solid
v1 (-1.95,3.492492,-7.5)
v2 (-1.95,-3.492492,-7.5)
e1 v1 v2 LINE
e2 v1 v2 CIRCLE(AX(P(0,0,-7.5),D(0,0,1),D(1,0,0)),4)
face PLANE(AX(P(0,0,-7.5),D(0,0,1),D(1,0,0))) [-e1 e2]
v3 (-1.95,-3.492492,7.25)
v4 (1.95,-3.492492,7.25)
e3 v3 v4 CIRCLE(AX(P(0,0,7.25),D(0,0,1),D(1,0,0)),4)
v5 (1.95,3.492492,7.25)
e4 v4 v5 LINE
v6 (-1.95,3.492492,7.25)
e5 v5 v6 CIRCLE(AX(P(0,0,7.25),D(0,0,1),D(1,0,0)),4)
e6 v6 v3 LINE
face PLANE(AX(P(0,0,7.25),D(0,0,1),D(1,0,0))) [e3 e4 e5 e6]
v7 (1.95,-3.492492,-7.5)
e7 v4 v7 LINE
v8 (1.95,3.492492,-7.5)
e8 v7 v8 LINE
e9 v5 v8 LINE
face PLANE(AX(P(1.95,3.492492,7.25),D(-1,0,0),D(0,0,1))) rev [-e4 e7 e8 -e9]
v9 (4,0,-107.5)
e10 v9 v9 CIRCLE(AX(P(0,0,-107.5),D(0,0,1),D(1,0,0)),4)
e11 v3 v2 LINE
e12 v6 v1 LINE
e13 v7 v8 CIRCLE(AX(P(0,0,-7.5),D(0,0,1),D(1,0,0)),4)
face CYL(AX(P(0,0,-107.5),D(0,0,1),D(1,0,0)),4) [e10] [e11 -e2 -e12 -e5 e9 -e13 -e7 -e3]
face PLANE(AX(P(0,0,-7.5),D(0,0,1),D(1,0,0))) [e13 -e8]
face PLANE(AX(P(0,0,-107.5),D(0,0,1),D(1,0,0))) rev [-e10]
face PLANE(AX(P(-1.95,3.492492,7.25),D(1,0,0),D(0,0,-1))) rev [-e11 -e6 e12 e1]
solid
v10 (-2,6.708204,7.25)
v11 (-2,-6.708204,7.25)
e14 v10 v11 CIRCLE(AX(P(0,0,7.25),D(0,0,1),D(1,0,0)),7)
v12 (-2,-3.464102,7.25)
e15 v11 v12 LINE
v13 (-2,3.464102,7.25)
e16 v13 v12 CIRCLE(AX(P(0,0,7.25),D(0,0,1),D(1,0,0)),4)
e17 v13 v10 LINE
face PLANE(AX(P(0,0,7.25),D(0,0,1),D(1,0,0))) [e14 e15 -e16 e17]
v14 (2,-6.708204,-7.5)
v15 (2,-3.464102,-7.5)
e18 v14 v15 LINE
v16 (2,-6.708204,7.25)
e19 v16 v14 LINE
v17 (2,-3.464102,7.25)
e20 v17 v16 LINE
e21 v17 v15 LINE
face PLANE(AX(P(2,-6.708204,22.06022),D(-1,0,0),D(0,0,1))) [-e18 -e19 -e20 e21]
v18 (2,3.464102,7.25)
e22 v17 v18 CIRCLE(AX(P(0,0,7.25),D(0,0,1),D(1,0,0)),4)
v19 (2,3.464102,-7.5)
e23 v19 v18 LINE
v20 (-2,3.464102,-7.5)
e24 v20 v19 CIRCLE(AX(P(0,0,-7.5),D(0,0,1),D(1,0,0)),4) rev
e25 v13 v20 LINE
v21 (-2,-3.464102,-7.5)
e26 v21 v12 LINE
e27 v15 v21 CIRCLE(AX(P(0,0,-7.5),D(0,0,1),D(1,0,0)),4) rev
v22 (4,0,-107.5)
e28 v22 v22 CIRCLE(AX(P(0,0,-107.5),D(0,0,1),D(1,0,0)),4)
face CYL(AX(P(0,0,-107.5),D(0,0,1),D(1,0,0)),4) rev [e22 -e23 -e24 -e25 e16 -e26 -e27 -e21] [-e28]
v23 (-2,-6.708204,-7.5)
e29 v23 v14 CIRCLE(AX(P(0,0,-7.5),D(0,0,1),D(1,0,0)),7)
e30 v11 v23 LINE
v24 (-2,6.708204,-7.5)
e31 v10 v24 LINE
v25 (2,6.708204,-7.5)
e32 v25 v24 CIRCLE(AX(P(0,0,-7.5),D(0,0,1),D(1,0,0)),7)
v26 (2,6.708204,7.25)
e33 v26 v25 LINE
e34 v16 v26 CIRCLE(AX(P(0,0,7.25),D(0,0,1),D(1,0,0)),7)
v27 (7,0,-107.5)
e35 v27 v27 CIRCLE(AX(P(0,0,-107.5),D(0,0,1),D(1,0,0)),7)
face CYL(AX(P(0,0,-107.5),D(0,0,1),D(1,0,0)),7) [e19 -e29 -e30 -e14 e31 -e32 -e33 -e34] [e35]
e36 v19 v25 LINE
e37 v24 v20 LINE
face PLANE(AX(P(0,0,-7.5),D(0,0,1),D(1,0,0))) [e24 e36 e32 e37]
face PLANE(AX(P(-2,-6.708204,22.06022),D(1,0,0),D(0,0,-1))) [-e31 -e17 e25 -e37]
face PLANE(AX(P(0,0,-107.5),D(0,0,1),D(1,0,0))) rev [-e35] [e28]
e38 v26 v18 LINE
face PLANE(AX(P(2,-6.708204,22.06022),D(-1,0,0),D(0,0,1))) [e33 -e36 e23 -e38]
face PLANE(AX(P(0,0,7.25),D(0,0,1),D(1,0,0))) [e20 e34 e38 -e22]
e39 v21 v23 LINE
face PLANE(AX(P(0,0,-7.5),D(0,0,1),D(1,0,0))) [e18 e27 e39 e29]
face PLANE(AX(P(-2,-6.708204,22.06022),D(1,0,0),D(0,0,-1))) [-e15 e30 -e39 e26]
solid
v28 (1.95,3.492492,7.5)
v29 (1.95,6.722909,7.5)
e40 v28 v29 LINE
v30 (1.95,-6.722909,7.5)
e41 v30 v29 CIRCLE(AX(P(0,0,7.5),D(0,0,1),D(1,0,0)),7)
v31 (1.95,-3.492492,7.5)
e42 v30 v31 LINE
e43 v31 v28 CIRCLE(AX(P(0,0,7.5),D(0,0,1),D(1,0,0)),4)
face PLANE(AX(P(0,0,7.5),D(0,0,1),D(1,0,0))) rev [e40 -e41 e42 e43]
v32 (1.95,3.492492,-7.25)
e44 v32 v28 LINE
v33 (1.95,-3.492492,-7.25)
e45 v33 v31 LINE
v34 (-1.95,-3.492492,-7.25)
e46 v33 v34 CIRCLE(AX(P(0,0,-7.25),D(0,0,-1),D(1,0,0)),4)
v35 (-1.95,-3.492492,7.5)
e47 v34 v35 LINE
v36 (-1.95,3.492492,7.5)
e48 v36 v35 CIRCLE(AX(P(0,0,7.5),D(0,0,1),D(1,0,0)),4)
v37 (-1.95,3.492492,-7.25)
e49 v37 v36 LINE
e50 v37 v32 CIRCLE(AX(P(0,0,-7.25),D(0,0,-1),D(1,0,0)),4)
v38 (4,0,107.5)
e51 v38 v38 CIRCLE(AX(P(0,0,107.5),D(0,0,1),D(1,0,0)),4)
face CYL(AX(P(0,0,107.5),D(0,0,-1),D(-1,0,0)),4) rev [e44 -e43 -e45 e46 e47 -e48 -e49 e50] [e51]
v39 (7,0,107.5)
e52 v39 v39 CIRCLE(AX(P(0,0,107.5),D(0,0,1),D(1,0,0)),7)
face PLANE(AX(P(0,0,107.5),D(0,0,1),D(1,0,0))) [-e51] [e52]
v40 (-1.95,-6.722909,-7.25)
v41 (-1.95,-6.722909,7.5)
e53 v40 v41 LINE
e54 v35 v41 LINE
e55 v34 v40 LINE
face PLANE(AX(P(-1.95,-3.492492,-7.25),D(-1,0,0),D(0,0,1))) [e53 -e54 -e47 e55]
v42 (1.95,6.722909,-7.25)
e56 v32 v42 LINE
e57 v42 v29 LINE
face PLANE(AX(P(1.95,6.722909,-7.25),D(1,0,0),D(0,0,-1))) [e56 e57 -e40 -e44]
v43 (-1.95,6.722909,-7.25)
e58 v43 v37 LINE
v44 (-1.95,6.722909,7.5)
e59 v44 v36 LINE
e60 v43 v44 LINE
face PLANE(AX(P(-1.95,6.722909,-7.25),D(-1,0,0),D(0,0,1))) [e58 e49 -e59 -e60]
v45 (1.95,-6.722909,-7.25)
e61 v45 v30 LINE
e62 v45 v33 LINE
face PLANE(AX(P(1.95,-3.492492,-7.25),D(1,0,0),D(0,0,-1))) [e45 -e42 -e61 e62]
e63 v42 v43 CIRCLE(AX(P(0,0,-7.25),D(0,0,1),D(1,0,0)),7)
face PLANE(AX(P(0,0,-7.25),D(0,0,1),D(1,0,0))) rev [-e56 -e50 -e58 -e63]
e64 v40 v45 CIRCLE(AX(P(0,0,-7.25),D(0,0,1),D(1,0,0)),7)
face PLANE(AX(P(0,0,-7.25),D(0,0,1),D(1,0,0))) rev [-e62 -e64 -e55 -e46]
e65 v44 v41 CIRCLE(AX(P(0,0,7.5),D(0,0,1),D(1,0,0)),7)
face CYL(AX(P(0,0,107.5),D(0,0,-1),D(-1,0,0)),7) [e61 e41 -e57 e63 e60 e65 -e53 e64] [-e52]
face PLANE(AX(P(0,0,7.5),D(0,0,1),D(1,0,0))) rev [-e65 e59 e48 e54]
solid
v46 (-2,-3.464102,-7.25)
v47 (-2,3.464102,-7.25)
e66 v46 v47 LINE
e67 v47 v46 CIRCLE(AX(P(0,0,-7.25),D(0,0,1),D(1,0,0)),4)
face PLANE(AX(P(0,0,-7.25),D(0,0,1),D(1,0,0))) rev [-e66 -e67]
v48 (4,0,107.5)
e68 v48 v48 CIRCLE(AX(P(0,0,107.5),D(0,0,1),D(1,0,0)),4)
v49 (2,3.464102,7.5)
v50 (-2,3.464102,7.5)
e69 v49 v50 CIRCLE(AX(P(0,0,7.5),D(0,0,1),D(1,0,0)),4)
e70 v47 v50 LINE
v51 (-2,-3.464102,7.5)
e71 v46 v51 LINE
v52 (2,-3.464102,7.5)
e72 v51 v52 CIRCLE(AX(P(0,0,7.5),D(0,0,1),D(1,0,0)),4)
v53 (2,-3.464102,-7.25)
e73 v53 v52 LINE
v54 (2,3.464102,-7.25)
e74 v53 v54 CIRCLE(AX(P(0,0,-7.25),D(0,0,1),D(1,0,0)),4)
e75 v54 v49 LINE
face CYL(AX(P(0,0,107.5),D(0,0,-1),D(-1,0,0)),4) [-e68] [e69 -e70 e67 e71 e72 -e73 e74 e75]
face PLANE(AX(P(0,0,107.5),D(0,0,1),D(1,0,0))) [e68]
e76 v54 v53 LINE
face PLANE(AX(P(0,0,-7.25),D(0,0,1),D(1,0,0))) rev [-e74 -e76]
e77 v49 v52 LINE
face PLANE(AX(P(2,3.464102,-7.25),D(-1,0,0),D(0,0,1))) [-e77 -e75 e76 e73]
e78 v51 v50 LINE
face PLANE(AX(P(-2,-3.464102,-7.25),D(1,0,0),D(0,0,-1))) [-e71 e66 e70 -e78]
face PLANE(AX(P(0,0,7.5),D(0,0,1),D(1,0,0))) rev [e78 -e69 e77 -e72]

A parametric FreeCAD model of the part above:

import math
import FreeCAD as App
import Part
import Sketcher

doc = App.newDocument("Part")
params = doc.addObject("Spreadsheet::Sheet", "Params")
for row, (alias, value) in enumerate([
    ("sketch1_diameter", "14 mm"),
    ("sketch1_diameter2", "8 mm"),
    ("pad1_length", "100 mm"),
    ("sketch2_diameter", "14 mm"),
    ("sketch2_diameter2", "8 mm"),
    ("pad2_length", "14.75 mm"),
    ("sketch3_radius", "7 mm"),
    ("pocket1_length", "15 mm"),
    ("sketch4_diameter", "14 mm"),
    ("sketch4_diameter2", "8 mm"),
    ("pad3_length", "100 mm"),
    ("sketch5_radius", "7 mm"),
    ("sketch5_radius2", "4 mm"),
    ("pad4_length", "14.75 mm"),
    ("sketch6_diameter", "8 mm"),
    ("pad5_length", "100 mm"),
    ("sketch7_radius", "4 mm"),
    ("pad6_length", "14.75 mm"),
    ("sketch8_diameter", "8 mm"),
    ("pad7_length", "100 mm"),
    ("sketch9_radius", "4 mm"),
    ("pad8_length", "14.75 mm"),
], start=1):
    params.set(f"A{row}", alias)
    params.set(f"B{row}", "=" + value)
    params.setAlias(f"B{row}", alias)

body = doc.addObject("PartDesign::Body", "Body")

# Sketch on XY plane
sketch1 = body.newObject("Sketcher::SketchObject", "Sketch")
sketch1.AttachmentSupport = (doc.getObject("XY_Plane"), [""])
sketch1.MapMode = "FlatFace"
sketch1.AttachmentOffset = App.Placement(App.Vector(0, 0, -7.5), App.Rotation())
sketch1.addGeometry([
    Part.Circle(App.Vector(0, 0, 0), App.Vector(0, 0, 1), 7),
    Part.Circle(App.Vector(0, 0, 0), App.Vector(0, 0, 1), 4),
], False)
sketch1.addConstraint([
    Sketcher.Constraint("Coincident", 0, 3, -1, 1),
    Sketcher.Constraint("Coincident", 1, 3, -1, 1),
    Sketcher.Constraint("Diameter", 0, 14.0),
    Sketcher.Constraint("Diameter", 1, 8.0),
])
sketch1.setExpression("Constraints[2]", "Params.sketch1_diameter")
sketch1.setExpression("Constraints[3]", "Params.sketch1_diameter2")
pad1 = body.newObject("PartDesign::Pad", "Pad")
pad1.Profile = sketch1
pad1.setExpression("Length", "Params.pad1_length")
pad1.Reversed = True

# Sketch on XY plane
sketch2 = body.newObject("Sketcher::SketchObject", "Sketch001")
sketch2.AttachmentSupport = (doc.getObject("XY_Plane"), [""])
sketch2.MapMode = "FlatFace"
sketch2.AttachmentOffset = App.Placement(App.Vector(0, 0, 7.25), App.Rotation())
sketch2.addGeometry([
    Part.Circle(App.Vector(0, 0, 0), App.Vector(0, 0, 1), 7),
    Part.Circle(App.Vector(0, 0, 0), App.Vector(0, 0, 1), 4),
], False)
sketch2.addConstraint([
    Sketcher.Constraint("Coincident", 0, 3, -1, 1),
    Sketcher.Constraint("Coincident", 1, 3, -1, 1),
    Sketcher.Constraint("Diameter", 0, 14.0),
    Sketcher.Constraint("Diameter", 1, 8.0),
])
sketch2.setExpression("Constraints[2]", "Params.sketch2_diameter")
sketch2.setExpression("Constraints[3]", "Params.sketch2_diameter2")
pad2 = body.newObject("PartDesign::Pad", "Pad001")
pad2.Profile = sketch2
pad2.setExpression("Length", "Params.pad2_length")
pad2.Reversed = True

# Sketch on XY plane
sketch3 = body.newObject("Sketcher::SketchObject", "Sketch002")
sketch3.AttachmentSupport = (doc.getObject("XY_Plane"), [""])
sketch3.MapMode = "FlatFace"
sketch3.AttachmentOffset = App.Placement(App.Vector(0, 0, 7.5), App.Rotation())
sketch3.addGeometry([
    Part.LineSegment(App.Vector(-2, 6.7, 0), App.Vector(-2, -6.7, 0)),
    Part.ArcOfCircle(Part.Circle(App.Vector(0, 0, 0), App.Vector(0, 0, 1), 7), math.radians(-107), math.radians(-73)),
    Part.LineSegment(App.Vector(2, -6.7, 0), App.Vector(2, 6.7, 0)),
    Part.ArcOfCircle(Part.Circle(App.Vector(0, 0, 0), App.Vector(0, 0, 1), 7), math.radians(73), math.radians(107)),
], False)
sketch3.addConstraint([
    Sketcher.Constraint("Coincident", 0, 2, 1, 1),
    Sketcher.Constraint("Coincident", 1, 2, 2, 1),
    Sketcher.Constraint("Coincident", 2, 2, 3, 1),
    Sketcher.Constraint("Coincident", 3, 2, 0, 1),
    Sketcher.Constraint("Vertical", 0),
    Sketcher.Constraint("Vertical", 2),
    Sketcher.Constraint("Coincident", 1, 3, -1, 1),
    Sketcher.Constraint("Coincident", 3, 3, -1, 1),
    Sketcher.Constraint("Equal", 1, 3),
    Sketcher.Constraint("Horizontal", 0, 2, 1, 2),
    Sketcher.Constraint("Radius", 1, 7.0),
    Sketcher.Constraint("DistanceX", 0, 2, -1, 1, 2.0),
])
sketch3.setExpression("Constraints[10]", "Params.sketch3_radius")
pocket1 = body.newObject("PartDesign::Pocket", "Pocket")
pocket1.Profile = sketch3
pocket1.setExpression("Length", "Params.pocket1_length")
body2 = doc.addObject("PartDesign::Body", "Body001")

# Sketch on XY plane
sketch4 = body2.newObject("Sketcher::SketchObject", "Sketch003")
sketch4.AttachmentSupport = (doc.getObject("XY_Plane001"), [""])
sketch4.MapMode = "FlatFace"
sketch4.AttachmentOffset = App.Placement(App.Vector(0, 0, 7.5), App.Rotation())
sketch4.addGeometry([
    Part.Circle(App.Vector(0, 0, 0), App.Vector(0, 0, 1), 7),
    Part.Circle(App.Vector(0, 0, 0), App.Vector(0, 0, 1), 4),
], False)
sketch4.addConstraint([
    Sketcher.Constraint("Coincident", 0, 3, -1, 1),
    Sketcher.Constraint("Coincident", 1, 3, -1, 1),
    Sketcher.Constraint("Diameter", 0, 14.0),
    Sketcher.Constraint("Diameter", 1, 8.0),
])
sketch4.setExpression("Constraints[2]", "Params.sketch4_diameter")
sketch4.setExpression("Constraints[3]", "Params.sketch4_diameter2")
pad3 = body2.newObject("PartDesign::Pad", "Pad002")
pad3.Profile = sketch4
pad3.setExpression("Length", "Params.pad3_length")

# Sketch on XY plane
sketch5 = body2.newObject("Sketcher::SketchObject", "Sketch004")
sketch5.AttachmentSupport = (doc.getObject("XY_Plane001"), [""])
sketch5.MapMode = "FlatFace"
sketch5.AttachmentOffset = App.Placement(App.Vector(0, 0, 7.5), App.Rotation())
sketch5.addGeometry([
    Part.LineSegment(App.Vector(1.9, 3.5, 0), App.Vector(1.9, 6.7, 0)),  # 0
    Part.ArcOfCircle(Part.Circle(App.Vector(0, 0, 0), App.Vector(0, 0, 1), 7), math.radians(74), math.radians(106)),  # 1
    Part.LineSegment(App.Vector(-1.9, 6.7, 0), App.Vector(-1.9, 3.5, 0)),  # 2
    Part.ArcOfCircle(Part.Circle(App.Vector(0, 0, 0), App.Vector(0, 0, 1), 4), math.radians(61), math.radians(119)),  # 3
    Part.LineSegment(App.Vector(1.9, -6.7, 0), App.Vector(1.9, -3.5, 0)),  # 4
    Part.ArcOfCircle(Part.Circle(App.Vector(0, 0, 0), App.Vector(0, 0, 1), 4), math.radians(-119), math.radians(-61)),  # 5
    Part.LineSegment(App.Vector(-1.9, -3.5, 0), App.Vector(-1.9, -6.7, 0)),  # 6
    Part.ArcOfCircle(Part.Circle(App.Vector(0, 0, 0), App.Vector(0, 0, 1), 7), math.radians(-106), math.radians(-74)),  # 7
], False)
sketch5.addConstraint([
    Sketcher.Constraint("Coincident", 0, 2, 1, 1),
    Sketcher.Constraint("Coincident", 1, 2, 2, 1),
    Sketcher.Constraint("Coincident", 2, 2, 3, 2),
    Sketcher.Constraint("Coincident", 3, 1, 0, 1),
    Sketcher.Constraint("Coincident", 4, 2, 5, 2),
    Sketcher.Constraint("Coincident", 5, 1, 6, 1),
    Sketcher.Constraint("Coincident", 6, 2, 7, 1),
    Sketcher.Constraint("Coincident", 7, 2, 4, 1),
    Sketcher.Constraint("Vertical", 0),
    Sketcher.Constraint("Vertical", 2),
    Sketcher.Constraint("Vertical", 4),
    Sketcher.Constraint("Vertical", 6),
    Sketcher.Constraint("Coincident", 1, 3, -1, 1),
    Sketcher.Constraint("Coincident", 3, 3, -1, 1),
    Sketcher.Constraint("Coincident", 5, 3, -1, 1),
    Sketcher.Constraint("Coincident", 7, 3, -1, 1),
    Sketcher.Constraint("Equal", 3, 5),
    Sketcher.Constraint("Equal", 1, 7),
    Sketcher.Constraint("Horizontal", 0, 2, 1, 2),
    Sketcher.Constraint("Horizontal", 4, 2, 5, 1),
    Sketcher.Constraint("Vertical", 3, 1, 4, 2),
    Sketcher.Constraint("Radius", 1, 7.0),
    Sketcher.Constraint("Radius", 3, 4.0),
    Sketcher.Constraint("DistanceX", 1, 2, 0, 2, 3.9),
])
sketch5.setExpression("Constraints[21]", "Params.sketch5_radius")
sketch5.setExpression("Constraints[22]", "Params.sketch5_radius2")
pad4 = body2.newObject("PartDesign::Pad", "Pad003")
pad4.Profile = sketch5
pad4.setExpression("Length", "Params.pad4_length")
pad4.Reversed = True
body3 = doc.addObject("PartDesign::Body", "Body002")

# Sketch on XY plane
sketch6 = body3.newObject("Sketcher::SketchObject", "Sketch005")
sketch6.AttachmentSupport = (doc.getObject("XY_Plane002"), [""])
sketch6.MapMode = "FlatFace"
sketch6.AttachmentOffset = App.Placement(App.Vector(0, 0, -7.5), App.Rotation())
sketch6.addGeometry(Part.Circle(App.Vector(0, 0, 0), App.Vector(0, 0, 1), 4), False)
sketch6.addConstraint([
    Sketcher.Constraint("Coincident", 0, 3, -1, 1),
    Sketcher.Constraint("Diameter", 0, 8.0),
])
sketch6.setExpression("Constraints[1]", "Params.sketch6_diameter")
pad5 = body3.newObject("PartDesign::Pad", "Pad004")
pad5.Profile = sketch6
pad5.setExpression("Length", "Params.pad5_length")
pad5.Reversed = True

# Sketch on XY plane
sketch7 = body3.newObject("Sketcher::SketchObject", "Sketch006")
sketch7.AttachmentSupport = (doc.getObject("XY_Plane002"), [""])
sketch7.MapMode = "FlatFace"
sketch7.AttachmentOffset = App.Placement(App.Vector(0, 0, 7.25), App.Rotation())
sketch7.addGeometry([
    Part.LineSegment(App.Vector(-1.9, 3.5, 0), App.Vector(-1.9, -3.5, 0)),
    Part.ArcOfCircle(Part.Circle(App.Vector(0, 0, 0), App.Vector(0, 0, 1), 4), math.radians(-119), math.radians(-61)),
    Part.LineSegment(App.Vector(1.9, -3.5, 0), App.Vector(1.9, 3.5, 0)),
    Part.ArcOfCircle(Part.Circle(App.Vector(0, 0, 0), App.Vector(0, 0, 1), 4), math.radians(61), math.radians(119)),
], False)
sketch7.addConstraint([
    Sketcher.Constraint("Coincident", 0, 2, 1, 1),
    Sketcher.Constraint("Coincident", 1, 2, 2, 1),
    Sketcher.Constraint("Coincident", 2, 2, 3, 1),
    Sketcher.Constraint("Coincident", 3, 2, 0, 1),
    Sketcher.Constraint("Vertical", 0),
    Sketcher.Constraint("Vertical", 2),
    Sketcher.Constraint("Coincident", 1, 3, -1, 1),
    Sketcher.Constraint("Coincident", 3, 3, -1, 1),
    Sketcher.Constraint("Equal", 1, 3),
    Sketcher.Constraint("Horizontal", 0, 2, 1, 2),
    Sketcher.Constraint("Radius", 1, 4.0),
    Sketcher.Constraint("DistanceX", 0, 2, 1, 2, 3.9),
])
sketch7.setExpression("Constraints[10]", "Params.sketch7_radius")
pad6 = body3.newObject("PartDesign::Pad", "Pad005")
pad6.Profile = sketch7
pad6.setExpression("Length", "Params.pad6_length")
pad6.Reversed = True
body4 = doc.addObject("PartDesign::Body", "Body003")

# Sketch on XY plane
sketch8 = body4.newObject("Sketcher::SketchObject", "Sketch007")
sketch8.AttachmentSupport = (doc.getObject("XY_Plane003"), [""])
sketch8.MapMode = "FlatFace"
sketch8.AttachmentOffset = App.Placement(App.Vector(0, 0, 7.5), App.Rotation())
sketch8.addGeometry(Part.Circle(App.Vector(0, 0, 0), App.Vector(0, 0, 1), 4), False)
sketch8.addConstraint([
    Sketcher.Constraint("Coincident", 0, 3, -1, 1),
    Sketcher.Constraint("Diameter", 0, 8.0),
])
sketch8.setExpression("Constraints[1]", "Params.sketch8_diameter")
pad7 = body4.newObject("PartDesign::Pad", "Pad006")
pad7.Profile = sketch8
pad7.setExpression("Length", "Params.pad7_length")

# Sketch on XY plane
sketch9 = body4.newObject("Sketcher::SketchObject", "Sketch008")
sketch9.AttachmentSupport = (doc.getObject("XY_Plane003"), [""])
sketch9.MapMode = "FlatFace"
sketch9.AttachmentOffset = App.Placement(App.Vector(0, 0, 7.5), App.Rotation())
sketch9.addGeometry([
    Part.LineSegment(App.Vector(2, 3.5, 0), App.Vector(2, -3.5, 0)),
    Part.ArcOfCircle(Part.Circle(App.Vector(0, 0, 0), App.Vector(0, 0, 1), 4), math.radians(-60), math.radians(60)),
    Part.LineSegment(App.Vector(-2, -3.5, 0), App.Vector(-2, 3.5, 0)),
    Part.ArcOfCircle(Part.Circle(App.Vector(0, 0, 0), App.Vector(0, 0, 1), 4), math.radians(120), math.radians(240)),
], False)
sketch9.addConstraint([
    Sketcher.Constraint("Coincident", 0, 1, 1, 2),
    Sketcher.Constraint("Coincident", 1, 1, 0, 2),
    Sketcher.Constraint("Coincident", 2, 1, 3, 2),
    Sketcher.Constraint("Coincident", 3, 1, 2, 2),
    Sketcher.Constraint("Vertical", 0),
    Sketcher.Constraint("Vertical", 2),
    Sketcher.Constraint("Coincident", 1, 3, -1, 1),
    Sketcher.Constraint("Coincident", 3, 3, -1, 1),
    Sketcher.Constraint("Equal", 1, 3),
    Sketcher.Constraint("Horizontal", 1, 1, 2, 1),
    Sketcher.Constraint("Radius", 1, 4.0),
    Sketcher.Constraint("DistanceX", -1, 1, 0, 1, 2.0),
])
sketch9.setExpression("Constraints[10]", "Params.sketch9_radius")
pad8 = body4.newObject("PartDesign::Pad", "Pad007")
pad8.Profile = sketch9
pad8.setExpression("Length", "Params.pad8_length")
pad8.Reversed = True

doc.recompute()
